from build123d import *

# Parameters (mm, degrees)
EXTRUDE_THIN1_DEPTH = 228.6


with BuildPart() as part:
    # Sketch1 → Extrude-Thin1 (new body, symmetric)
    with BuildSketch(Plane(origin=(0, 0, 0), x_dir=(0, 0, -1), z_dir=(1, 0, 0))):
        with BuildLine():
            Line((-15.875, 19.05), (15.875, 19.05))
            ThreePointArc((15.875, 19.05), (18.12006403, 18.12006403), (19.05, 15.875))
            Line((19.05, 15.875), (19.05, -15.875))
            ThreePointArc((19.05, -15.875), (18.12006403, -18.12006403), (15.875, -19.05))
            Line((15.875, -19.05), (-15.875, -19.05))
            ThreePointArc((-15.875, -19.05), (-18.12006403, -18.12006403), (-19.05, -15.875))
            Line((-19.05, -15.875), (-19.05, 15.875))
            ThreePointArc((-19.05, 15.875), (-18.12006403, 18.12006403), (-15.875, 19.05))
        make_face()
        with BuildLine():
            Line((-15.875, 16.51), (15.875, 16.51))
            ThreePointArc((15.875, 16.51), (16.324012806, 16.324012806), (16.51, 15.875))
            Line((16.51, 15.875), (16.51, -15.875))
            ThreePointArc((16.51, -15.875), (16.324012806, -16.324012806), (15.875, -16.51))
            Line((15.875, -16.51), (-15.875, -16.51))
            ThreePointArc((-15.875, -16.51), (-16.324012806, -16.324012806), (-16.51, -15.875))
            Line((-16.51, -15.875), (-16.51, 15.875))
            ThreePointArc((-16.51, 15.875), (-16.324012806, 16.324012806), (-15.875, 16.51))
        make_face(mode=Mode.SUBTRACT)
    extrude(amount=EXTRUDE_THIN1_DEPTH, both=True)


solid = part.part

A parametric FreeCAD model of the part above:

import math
import FreeCAD as App
import Part
import Sketcher

V = App.Vector
Q = App.Units.Quantity

doc = App.newDocument("Part")
body = doc.addObject("PartDesign::Body", "Body")

# Sketch on YZ plane
sketch1 = body.newObject("Sketcher::SketchObject", "Sketch")
sketch1.AttachmentSupport = (doc.getObject("YZ_Plane"), [""])
sketch1.MapMode = "FlatFace"
sketch1.addGeometry([
    Part.LineSegment(V(19.05, -15.875, 0), V(19.05, 15.875, 0)),  # 0
    Part.ArcOfCircle(Part.Circle(V(15.875, 15.875, 0), V(0, 0, 1), 3.175), math.radians(0), math.radians(90)),  # 1
    Part.LineSegment(V(15.875, 19.05, 0), V(-15.875, 19.05, 0)),  # 2
    Part.ArcOfCircle(Part.Circle(V(-15.875, 15.875, 0), V(0, 0, 1), 3.175), math.radians(90), math.radians(180)),  # 3
    Part.LineSegment(V(-19.05, 15.875, 0), V(-19.05, -15.875, 0)),  # 4
    Part.ArcOfCircle(Part.Circle(V(-15.875, -15.875, 0), V(0, 0, 1), 3.175), math.radians(-180), math.radians(-90)),  # 5
    Part.LineSegment(V(-15.875, -19.05, 0), V(15.875, -19.05, 0)),  # 6
    Part.ArcOfCircle(Part.Circle(V(15.875, -15.875, 0), V(0, 0, 1), 3.175), math.radians(-90), math.radians(0)),  # 7
    Part.LineSegment(V(16.51, 15.875, 0), V(16.51, -15.875, 0)),  # 8
    Part.ArcOfCircle(Part.Circle(V(15.875, -15.875, 0), V(0, 0, 1), 0.635), math.radians(-90), math.radians(0)),  # 9
    Part.LineSegment(V(15.875, -16.51, 0), V(-15.875, -16.51, 0)),  # 10
    Part.ArcOfCircle(Part.Circle(V(-15.875, -15.875, 0), V(0, 0, 1), 0.635), math.radians(180), math.radians(270)),  # 11
    Part.LineSegment(V(-16.51, -15.875, 0), V(-16.51, 15.875, 0)),  # 12
    Part.ArcOfCircle(Part.Circle(V(-15.875, 15.875, 0), V(0, 0, 1), 0.635), math.radians(90), math.radians(180)),  # 13
    Part.LineSegment(V(-15.875, 16.51, 0), V(15.875, 16.51, 0)),  # 14
    Part.ArcOfCircle(Part.Circle(V(15.875, 15.875, 0), V(0, 0, 1), 0.635), math.radians(0), math.radians(90)),  # 15
], False)
sketch1.addConstraint([
    Sketcher.Constraint("Tangent", 0, 2, 1, 1),
    Sketcher.Constraint("Tangent", 1, 2, 2, 1),
    Sketcher.Constraint("Tangent", 2, 2, 3, 1),
    Sketcher.Constraint("Tangent", 3, 2, 4, 1),
    Sketcher.Constraint("Tangent", 4, 2, 5, 1),
    Sketcher.Constraint("Tangent", 5, 2, 6, 1),
    Sketcher.Constraint("Tangent", 6, 2, 7, 1),
    Sketcher.Constraint("Tangent", 7, 2, 0, 1),
    Sketcher.Constraint("Tangent", 8, 2, 9, 2),
    Sketcher.Constraint("Tangent", 9, 1, 10, 1),
    Sketcher.Constraint("Tangent", 10, 2, 11, 2),
    Sketcher.Constraint("Tangent", 11, 1, 12, 1),
    Sketcher.Constraint("Tangent", 12, 2, 13, 2),
    Sketcher.Constraint("Tangent", 13, 1, 14, 1),
    Sketcher.Constraint("Tangent", 14, 2, 15, 2),
    Sketcher.Constraint("Tangent", 15, 1, 8, 1),
    Sketcher.Constraint("Vertical", 0),
    Sketcher.Constraint("Horizontal", 2),
    Sketcher.Constraint("Vertical", 4),
    Sketcher.Constraint("Horizontal", 6),
    Sketcher.Constraint("Vertical", 8),
    Sketcher.Constraint("Horizontal", 10),
    Sketcher.Constraint("Vertical", 12),
    Sketcher.Constraint("Horizontal", 14),
    Sketcher.Constraint("Coincident", 9, 3, 7, 3),
    Sketcher.Constraint("Coincident", 11, 3, 5, 3),
    Sketcher.Constraint("Coincident", 13, 3, 3, 3),
    Sketcher.Constraint("Equal", 1, 3),
    Sketcher.Constraint("Equal", 3, 5),
    Sketcher.Constraint("Equal", 5, 7),
    Sketcher.Constraint("Equal", 13, 15),
    Sketcher.Constraint("Symmetric", 1, 3, 5, 3, -1, 1),
    Sketcher.Constraint("Equal", 14, 0),
    Sketcher.Constraint("Radius", 1, Q("0.125 in")),
    Sketcher.Constraint("Radius", 9, Q("0.025 in")),
    Sketcher.Constraint("DistanceX", 2, 2, 2, 1, Q("1.25 in")),
])
pad1 = body.newObject("PartDesign::Pad", "Pad")
pad1.Profile = sketch1
pad1.Length = Q("18 in")
pad1.Midplane = True

doc.recompute()
